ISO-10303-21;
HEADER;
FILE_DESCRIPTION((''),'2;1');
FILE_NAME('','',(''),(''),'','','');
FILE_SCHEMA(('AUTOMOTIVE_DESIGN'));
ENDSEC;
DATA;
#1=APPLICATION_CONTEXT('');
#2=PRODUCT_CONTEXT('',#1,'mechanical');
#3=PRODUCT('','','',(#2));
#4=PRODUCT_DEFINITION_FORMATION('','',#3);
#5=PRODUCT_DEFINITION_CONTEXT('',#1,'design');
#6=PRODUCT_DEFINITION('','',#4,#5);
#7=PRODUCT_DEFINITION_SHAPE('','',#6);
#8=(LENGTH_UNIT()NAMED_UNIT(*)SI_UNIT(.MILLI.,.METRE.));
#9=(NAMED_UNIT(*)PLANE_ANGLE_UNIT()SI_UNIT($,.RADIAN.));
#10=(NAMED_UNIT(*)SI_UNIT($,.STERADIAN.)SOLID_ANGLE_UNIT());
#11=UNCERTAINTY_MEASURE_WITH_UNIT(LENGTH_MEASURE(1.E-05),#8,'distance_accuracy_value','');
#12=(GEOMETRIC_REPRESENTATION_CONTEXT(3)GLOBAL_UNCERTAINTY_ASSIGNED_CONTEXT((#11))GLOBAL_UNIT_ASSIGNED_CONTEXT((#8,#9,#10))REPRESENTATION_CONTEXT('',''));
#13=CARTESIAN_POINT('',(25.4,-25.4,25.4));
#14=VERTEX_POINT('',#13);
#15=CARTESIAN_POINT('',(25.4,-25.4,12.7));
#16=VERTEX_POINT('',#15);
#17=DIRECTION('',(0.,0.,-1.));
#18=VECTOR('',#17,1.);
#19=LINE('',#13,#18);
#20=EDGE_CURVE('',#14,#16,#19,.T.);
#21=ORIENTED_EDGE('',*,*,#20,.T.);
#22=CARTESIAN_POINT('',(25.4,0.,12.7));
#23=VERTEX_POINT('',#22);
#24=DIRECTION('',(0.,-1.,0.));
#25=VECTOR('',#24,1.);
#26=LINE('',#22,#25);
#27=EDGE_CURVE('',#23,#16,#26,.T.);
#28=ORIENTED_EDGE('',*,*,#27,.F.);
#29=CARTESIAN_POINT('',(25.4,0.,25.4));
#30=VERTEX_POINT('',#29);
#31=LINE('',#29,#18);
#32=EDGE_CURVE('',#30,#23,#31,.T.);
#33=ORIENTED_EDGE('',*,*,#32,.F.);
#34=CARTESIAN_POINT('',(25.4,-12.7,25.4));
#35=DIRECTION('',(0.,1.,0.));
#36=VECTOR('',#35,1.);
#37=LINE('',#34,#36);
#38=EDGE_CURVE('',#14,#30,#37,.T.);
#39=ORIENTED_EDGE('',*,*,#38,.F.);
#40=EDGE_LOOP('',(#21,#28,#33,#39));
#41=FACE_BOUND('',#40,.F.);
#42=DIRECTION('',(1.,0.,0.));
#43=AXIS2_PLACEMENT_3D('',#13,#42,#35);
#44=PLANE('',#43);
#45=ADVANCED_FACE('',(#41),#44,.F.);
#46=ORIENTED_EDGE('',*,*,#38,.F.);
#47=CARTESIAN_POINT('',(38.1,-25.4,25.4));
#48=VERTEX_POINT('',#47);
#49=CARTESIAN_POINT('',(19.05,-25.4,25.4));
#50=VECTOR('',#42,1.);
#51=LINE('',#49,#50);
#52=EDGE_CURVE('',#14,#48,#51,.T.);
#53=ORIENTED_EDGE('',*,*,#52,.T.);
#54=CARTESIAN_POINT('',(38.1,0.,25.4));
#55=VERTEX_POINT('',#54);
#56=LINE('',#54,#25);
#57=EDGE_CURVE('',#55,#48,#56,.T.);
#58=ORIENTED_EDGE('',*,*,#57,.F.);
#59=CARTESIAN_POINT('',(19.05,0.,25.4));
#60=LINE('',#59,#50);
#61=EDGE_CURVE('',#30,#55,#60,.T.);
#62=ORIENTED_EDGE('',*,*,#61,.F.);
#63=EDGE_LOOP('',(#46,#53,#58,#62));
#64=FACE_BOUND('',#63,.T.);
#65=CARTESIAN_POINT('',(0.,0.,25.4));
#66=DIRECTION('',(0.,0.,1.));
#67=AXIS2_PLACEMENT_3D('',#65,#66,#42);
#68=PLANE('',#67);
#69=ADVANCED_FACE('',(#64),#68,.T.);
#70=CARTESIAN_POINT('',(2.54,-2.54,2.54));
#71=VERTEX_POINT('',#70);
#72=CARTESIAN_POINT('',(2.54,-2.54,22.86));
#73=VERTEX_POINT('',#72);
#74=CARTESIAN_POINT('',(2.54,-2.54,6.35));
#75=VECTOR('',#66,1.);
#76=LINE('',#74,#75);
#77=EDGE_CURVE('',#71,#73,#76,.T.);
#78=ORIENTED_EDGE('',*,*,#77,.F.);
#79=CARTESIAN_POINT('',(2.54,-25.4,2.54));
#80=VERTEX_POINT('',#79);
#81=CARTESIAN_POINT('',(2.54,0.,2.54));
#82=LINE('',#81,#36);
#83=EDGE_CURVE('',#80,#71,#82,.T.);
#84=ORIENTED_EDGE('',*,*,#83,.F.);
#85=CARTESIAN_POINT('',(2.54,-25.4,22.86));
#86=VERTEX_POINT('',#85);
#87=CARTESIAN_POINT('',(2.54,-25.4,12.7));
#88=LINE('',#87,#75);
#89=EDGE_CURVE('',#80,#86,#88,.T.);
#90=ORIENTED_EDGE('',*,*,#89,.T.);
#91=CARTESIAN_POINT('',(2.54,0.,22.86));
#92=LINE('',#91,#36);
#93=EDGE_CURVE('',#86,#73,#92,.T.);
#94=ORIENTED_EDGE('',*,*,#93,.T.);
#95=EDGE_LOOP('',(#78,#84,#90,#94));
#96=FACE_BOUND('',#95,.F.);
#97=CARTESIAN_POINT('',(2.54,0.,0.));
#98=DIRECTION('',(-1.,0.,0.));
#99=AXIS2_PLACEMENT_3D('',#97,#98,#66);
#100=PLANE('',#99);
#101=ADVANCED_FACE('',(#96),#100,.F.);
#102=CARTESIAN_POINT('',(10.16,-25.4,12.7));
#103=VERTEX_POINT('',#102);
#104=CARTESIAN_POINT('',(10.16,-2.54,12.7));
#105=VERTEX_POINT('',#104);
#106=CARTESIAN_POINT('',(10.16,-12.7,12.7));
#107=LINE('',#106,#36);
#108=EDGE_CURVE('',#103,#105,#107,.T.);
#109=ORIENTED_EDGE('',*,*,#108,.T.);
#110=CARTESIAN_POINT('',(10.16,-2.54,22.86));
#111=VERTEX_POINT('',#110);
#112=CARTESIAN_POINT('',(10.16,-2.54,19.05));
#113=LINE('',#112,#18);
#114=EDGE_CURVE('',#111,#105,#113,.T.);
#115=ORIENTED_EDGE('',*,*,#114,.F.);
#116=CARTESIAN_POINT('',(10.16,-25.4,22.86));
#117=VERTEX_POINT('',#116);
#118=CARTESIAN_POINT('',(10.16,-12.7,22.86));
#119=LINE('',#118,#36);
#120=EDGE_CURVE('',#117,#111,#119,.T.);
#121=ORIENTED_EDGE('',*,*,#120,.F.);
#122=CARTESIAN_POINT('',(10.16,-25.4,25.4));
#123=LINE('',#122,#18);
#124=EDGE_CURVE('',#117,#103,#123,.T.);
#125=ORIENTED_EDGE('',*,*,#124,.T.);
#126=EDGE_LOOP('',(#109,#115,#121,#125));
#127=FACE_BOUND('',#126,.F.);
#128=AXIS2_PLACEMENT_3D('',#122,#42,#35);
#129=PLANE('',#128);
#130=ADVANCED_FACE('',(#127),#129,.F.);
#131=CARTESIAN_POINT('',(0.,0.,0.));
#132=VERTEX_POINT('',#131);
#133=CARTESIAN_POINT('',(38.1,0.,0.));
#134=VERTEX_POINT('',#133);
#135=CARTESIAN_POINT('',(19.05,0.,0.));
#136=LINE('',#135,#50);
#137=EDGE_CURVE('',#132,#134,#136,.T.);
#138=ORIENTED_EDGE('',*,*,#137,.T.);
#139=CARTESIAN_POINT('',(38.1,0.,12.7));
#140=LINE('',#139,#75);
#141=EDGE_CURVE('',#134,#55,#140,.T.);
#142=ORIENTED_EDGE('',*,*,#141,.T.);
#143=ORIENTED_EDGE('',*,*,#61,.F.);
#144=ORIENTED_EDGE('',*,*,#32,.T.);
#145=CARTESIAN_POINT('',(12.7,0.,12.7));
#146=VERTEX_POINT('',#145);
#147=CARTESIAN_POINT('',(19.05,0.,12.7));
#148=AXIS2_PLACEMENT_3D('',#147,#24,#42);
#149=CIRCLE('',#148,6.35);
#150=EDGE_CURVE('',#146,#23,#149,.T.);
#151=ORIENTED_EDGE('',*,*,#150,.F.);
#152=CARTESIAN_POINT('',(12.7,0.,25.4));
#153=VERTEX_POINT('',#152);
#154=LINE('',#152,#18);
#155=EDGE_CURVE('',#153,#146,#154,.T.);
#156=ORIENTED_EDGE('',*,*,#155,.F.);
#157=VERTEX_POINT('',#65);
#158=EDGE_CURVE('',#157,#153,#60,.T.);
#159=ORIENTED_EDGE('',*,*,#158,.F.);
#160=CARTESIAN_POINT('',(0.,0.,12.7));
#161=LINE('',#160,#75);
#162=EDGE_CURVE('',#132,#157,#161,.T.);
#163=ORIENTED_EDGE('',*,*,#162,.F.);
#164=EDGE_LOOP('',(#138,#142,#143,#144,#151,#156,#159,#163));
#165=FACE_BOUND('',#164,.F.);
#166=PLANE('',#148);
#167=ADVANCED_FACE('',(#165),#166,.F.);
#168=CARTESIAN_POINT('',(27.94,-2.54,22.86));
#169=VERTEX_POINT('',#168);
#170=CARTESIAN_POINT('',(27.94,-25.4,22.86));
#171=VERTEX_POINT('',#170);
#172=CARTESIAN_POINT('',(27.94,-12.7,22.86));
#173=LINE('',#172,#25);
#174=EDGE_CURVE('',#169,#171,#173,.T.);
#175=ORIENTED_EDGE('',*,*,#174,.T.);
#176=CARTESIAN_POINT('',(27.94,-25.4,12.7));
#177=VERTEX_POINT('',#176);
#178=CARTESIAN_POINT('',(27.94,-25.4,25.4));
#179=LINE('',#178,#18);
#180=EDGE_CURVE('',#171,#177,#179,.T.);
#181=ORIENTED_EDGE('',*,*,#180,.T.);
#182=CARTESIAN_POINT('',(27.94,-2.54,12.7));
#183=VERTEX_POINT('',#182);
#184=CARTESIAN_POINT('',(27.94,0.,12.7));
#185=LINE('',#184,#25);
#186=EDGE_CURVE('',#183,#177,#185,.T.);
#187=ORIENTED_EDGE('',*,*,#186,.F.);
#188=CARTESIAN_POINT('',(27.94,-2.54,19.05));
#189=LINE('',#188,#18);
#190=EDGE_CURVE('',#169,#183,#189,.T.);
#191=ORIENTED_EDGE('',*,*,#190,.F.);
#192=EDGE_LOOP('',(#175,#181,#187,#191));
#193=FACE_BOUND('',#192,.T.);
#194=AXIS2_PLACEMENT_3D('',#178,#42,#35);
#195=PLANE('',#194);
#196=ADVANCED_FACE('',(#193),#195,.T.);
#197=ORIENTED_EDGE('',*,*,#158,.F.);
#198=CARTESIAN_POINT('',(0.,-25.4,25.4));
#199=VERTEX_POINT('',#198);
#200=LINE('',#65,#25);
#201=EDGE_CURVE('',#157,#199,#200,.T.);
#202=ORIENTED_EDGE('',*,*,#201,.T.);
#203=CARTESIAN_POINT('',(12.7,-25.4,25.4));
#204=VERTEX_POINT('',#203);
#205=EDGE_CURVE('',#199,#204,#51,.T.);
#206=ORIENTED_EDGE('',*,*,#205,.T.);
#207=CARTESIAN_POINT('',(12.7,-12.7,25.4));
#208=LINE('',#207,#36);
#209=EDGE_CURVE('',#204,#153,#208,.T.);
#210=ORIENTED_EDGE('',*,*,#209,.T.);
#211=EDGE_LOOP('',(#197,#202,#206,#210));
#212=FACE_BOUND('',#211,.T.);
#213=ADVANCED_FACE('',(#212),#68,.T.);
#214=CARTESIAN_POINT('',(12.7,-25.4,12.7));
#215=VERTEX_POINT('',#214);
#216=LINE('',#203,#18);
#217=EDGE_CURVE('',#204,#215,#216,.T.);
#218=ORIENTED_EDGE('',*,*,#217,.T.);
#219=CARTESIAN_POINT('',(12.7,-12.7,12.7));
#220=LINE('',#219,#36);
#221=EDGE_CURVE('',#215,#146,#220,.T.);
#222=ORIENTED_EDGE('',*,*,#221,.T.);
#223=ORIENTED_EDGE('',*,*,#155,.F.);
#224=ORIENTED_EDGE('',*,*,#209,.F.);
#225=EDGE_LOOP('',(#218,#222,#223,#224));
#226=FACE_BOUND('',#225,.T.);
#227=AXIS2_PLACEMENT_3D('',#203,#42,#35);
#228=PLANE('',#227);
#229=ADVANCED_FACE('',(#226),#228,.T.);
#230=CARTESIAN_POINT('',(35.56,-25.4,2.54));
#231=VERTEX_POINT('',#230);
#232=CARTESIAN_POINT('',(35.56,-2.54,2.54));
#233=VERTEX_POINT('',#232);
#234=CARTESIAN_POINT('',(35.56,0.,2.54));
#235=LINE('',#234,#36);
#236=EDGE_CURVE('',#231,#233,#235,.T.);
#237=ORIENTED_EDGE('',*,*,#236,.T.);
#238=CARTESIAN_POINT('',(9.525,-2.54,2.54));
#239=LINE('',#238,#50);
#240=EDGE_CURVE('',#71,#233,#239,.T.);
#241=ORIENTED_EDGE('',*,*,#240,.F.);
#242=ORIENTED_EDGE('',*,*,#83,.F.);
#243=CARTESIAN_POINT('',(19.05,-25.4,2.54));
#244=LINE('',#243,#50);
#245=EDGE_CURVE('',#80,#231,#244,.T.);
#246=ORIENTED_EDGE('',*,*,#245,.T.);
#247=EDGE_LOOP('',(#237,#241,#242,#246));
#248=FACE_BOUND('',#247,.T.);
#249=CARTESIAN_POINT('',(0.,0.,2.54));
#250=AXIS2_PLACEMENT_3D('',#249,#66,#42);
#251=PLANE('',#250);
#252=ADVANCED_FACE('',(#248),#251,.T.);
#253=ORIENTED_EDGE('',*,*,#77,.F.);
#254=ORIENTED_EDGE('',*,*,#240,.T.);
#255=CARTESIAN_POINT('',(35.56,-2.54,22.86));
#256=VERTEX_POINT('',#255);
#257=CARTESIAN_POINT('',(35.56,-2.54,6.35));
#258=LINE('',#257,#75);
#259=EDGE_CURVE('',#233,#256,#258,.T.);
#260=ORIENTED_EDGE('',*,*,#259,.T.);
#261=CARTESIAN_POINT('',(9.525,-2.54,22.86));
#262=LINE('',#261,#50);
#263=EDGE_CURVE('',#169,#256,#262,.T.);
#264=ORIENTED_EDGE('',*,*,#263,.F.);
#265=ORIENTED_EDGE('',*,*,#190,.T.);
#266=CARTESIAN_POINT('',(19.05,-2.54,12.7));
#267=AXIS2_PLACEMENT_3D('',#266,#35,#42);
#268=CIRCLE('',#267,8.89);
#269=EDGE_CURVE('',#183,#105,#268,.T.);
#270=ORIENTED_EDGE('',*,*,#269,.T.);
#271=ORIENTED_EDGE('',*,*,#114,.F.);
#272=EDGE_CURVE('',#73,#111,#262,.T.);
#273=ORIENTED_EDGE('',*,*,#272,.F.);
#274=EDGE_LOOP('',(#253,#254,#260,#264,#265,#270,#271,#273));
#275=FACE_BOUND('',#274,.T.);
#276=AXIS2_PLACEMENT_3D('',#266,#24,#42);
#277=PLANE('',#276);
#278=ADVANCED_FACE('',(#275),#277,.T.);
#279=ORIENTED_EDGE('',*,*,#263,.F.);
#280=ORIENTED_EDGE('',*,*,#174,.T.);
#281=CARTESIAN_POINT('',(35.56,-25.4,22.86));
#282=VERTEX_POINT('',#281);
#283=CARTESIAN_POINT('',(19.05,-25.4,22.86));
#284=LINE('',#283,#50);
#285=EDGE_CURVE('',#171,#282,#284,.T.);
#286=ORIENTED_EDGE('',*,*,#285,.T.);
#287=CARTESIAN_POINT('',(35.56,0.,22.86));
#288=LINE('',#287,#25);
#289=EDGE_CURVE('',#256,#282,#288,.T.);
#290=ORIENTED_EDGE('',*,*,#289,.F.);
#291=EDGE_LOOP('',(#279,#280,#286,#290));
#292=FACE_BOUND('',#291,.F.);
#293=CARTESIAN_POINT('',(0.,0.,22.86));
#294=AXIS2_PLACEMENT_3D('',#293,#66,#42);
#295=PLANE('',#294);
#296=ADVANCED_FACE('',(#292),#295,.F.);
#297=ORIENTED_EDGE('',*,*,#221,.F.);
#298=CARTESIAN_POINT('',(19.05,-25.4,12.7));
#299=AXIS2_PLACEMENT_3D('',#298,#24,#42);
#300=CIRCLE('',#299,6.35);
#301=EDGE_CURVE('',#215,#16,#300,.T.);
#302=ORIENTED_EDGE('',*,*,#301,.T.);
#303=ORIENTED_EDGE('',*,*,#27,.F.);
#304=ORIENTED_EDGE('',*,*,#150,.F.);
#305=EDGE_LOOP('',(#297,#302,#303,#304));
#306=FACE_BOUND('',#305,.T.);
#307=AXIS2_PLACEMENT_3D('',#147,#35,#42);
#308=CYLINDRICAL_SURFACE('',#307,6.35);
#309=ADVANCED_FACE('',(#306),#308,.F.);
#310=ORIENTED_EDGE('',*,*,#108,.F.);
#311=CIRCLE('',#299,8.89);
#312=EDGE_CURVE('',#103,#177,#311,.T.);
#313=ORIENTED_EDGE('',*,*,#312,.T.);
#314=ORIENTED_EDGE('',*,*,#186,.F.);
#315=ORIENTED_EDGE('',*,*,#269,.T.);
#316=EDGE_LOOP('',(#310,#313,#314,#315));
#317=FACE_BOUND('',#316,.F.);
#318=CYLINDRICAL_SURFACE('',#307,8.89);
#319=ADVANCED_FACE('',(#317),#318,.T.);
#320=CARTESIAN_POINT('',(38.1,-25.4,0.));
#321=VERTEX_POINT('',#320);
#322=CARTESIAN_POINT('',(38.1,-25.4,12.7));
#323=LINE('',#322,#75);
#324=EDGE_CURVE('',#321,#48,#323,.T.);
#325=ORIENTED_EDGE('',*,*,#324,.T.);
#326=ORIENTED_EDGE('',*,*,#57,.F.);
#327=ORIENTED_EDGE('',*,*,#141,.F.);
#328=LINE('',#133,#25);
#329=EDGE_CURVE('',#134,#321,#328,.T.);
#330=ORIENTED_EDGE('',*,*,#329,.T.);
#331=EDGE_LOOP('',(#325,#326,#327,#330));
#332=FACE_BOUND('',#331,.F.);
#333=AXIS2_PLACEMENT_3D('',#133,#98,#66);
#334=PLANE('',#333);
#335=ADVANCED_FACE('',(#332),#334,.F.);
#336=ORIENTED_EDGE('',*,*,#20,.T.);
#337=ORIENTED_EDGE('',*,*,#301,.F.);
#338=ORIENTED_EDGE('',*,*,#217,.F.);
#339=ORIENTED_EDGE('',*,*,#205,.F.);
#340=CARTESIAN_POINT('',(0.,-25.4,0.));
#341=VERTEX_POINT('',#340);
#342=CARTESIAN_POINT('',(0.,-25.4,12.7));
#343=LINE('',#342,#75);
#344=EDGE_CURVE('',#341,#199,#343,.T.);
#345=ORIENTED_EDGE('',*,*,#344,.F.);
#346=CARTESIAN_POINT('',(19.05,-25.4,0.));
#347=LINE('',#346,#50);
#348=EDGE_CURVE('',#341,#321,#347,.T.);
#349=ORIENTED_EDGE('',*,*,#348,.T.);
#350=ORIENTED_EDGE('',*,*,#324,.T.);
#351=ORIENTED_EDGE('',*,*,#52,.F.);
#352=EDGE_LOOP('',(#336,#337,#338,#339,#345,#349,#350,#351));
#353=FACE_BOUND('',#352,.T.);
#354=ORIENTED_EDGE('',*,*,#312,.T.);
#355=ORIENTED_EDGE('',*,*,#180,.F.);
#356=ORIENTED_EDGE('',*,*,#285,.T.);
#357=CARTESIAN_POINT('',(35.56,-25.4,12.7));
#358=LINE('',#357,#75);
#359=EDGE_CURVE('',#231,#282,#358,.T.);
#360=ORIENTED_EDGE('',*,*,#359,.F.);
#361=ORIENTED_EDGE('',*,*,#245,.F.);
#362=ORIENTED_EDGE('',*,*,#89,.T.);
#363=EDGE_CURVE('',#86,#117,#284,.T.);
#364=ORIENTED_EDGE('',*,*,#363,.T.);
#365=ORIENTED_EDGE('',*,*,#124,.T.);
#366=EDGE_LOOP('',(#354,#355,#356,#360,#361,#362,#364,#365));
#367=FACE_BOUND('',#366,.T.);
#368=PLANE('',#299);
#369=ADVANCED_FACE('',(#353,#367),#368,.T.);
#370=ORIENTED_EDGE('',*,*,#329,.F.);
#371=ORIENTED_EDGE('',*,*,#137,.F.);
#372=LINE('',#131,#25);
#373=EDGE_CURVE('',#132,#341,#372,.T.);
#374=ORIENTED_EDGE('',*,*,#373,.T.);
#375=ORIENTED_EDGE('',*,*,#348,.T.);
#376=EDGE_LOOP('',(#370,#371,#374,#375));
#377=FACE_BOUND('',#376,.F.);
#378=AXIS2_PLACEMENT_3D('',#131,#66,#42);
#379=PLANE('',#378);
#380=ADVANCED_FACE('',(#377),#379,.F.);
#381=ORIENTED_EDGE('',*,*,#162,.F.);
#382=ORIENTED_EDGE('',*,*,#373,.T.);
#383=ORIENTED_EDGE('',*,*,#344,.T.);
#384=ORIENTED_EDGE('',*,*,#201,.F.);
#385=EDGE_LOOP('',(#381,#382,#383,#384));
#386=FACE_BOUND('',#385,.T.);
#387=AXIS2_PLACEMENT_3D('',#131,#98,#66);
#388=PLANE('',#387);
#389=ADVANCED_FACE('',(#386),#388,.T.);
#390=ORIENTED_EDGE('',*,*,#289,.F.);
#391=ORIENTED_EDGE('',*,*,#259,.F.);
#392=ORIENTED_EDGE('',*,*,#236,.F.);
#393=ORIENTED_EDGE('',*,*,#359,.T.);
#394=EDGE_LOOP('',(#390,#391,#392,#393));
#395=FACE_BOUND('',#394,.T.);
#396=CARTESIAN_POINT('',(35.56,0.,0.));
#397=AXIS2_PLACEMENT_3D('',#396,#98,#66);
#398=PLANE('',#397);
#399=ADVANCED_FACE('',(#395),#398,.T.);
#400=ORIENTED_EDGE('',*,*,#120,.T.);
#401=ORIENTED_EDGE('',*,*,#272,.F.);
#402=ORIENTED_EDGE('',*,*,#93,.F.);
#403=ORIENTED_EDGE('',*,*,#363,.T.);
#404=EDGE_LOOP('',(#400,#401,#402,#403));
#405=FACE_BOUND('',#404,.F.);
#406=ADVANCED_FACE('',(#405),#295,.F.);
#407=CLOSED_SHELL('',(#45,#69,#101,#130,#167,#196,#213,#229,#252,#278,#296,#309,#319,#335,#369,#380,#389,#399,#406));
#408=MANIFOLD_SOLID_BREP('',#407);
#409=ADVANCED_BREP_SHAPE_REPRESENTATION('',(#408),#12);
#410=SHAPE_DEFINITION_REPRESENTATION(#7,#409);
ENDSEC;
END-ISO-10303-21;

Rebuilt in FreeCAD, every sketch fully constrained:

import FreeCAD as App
import Part
import Sketcher
from FreeCAD import Vector
Q = App.Units.Quantity


def faces_at(feature, points):
    """Names of the faces that lie closest to the given points."""
    faces = feature.Shape.Faces
    near = lambda p: min(range(len(faces)), key=lambda i: faces[i].distToShape(Part.Vertex(*p))[0])
    return sorted({f"Face{near(p) + 1}" for p in points})

doc = App.newDocument("Part")
body = doc.addObject("PartDesign::Body", "Body")

# Sketch on XZ plane
sketch1 = doc.addObject("Sketcher::SketchObject", "Sketch")
body.addObject(sketch1)
sketch1.AttachmentSupport = (doc.XZ_Plane, [""])
sketch1.MapMode = "FlatFace"
sketch1.addGeometry([
    Part.LineSegment(Vector(0, 25.4, 0), Vector(0, 0, 0)),  # 0
    Part.LineSegment(Vector(0, 0, 0), Vector(38.1, 0, 0)),  # 1
    Part.LineSegment(Vector(38.1, 0, 0), Vector(38.1, 25.4, 0)),  # 2
    Part.LineSegment(Vector(38.1, 25.4, 0), Vector(0, 25.4, 0)),  # 3
    Part.Circle(Vector(19.05, 12.7, 0), Vector(0, 0, 1), 6.35),  # 4
], False)
sketch1.addConstraint([
    Sketcher.Constraint("Coincident", 0, 2, 1, 1),
    Sketcher.Constraint("Coincident", 1, 2, 2, 1),
    Sketcher.Constraint("Coincident", 2, 2, 3, 1),
    Sketcher.Constraint("Coincident", 3, 2, 0, 1),
    Sketcher.Constraint("Vertical", 0),
    Sketcher.Constraint("Horizontal", 1),
    Sketcher.Constraint("Vertical", 2),
    Sketcher.Constraint("Horizontal", 3),
    Sketcher.Constraint("Coincident", 0, 2, -1, 1),
    Sketcher.Constraint("Diameter", 4, Q("0.5 in")),
    Sketcher.Constraint("DistanceY", 0, 2, 0, 1, Q("1 in")),
    Sketcher.Constraint("DistanceX", 1, 1, 1, 2, Q("1.5 in")),
    Sketcher.Constraint("DistanceY", -1, 1, 4, 3, Q("0.5 in")),
    Sketcher.Constraint("DistanceX", -1, 1, 4, 3, Q("0.75 in")),
])
pad1 = doc.addObject("PartDesign::Pad", "Pad")
body.addObject(pad1)
pad1.Profile = sketch1
pad1.Length = Q("1 in")

# Sketch on XY plane
sketch2 = doc.addObject("Sketcher::SketchObject", "Sketch001")
body.addObject(sketch2)
sketch2.AttachmentSupport = (doc.XY_Plane, [""])
sketch2.MapMode = "FlatFace"
sketch2.AttachmentOffset = App.Placement(Vector(0, 0, 1 * 25.4), App.Rotation())
sketch2.addGeometry([
    Part.LineSegment(Vector(12.7, 0, 0), Vector(12.7, -25.4, 0)),
    Part.LineSegment(Vector(12.7, -25.4, 0), Vector(25.4, -25.4, 0)),
    Part.LineSegment(Vector(25.4, -25.4, 0), Vector(25.4, 0, 0)),
    Part.LineSegment(Vector(25.4, 0, 0), Vector(12.7, 0, 0)),
], False)
sketch2.addConstraint([
    Sketcher.Constraint("Coincident", 0, 2, 1, 1),
    Sketcher.Constraint("Coincident", 1, 2, 2, 1),
    Sketcher.Constraint("Coincident", 2, 2, 3, 1),
    Sketcher.Constraint("Coincident", 3, 2, 0, 1),
    Sketcher.Constraint("Vertical", 0),
    Sketcher.Constraint("Horizontal", 1),
    Sketcher.Constraint("Vertical", 2),
    Sketcher.Constraint("Horizontal", 3),
    Sketcher.Constraint("PointOnObject", 2, 2, -1),
    Sketcher.Constraint("DistanceY", 0, 2, 0, 1, Q("1 in")),
    Sketcher.Constraint("DistanceX", 1, 1, 1, 2, Q("0.5 in")),
    Sketcher.Constraint("DistanceX", -1, 1, 1, 2, Q("1 in")),
])
pocket1 = doc.addObject("PartDesign::Pocket", "Pocket")
body.addObject(pocket1)
pocket1.Profile = sketch2
pocket1.Length = Q("0.5 in")
doc.recompute()

thickness = doc.addObject("PartDesign::Thickness", "Thickness")
body.addObject(thickness)
thickness.Base = (pocket1, faces_at(pocket1, [(11.43, -25.4, 7.62)]))
thickness.Value = Q("0.1 in")
thickness.Reversed = True
thickness.Join = "Arc"

doc.recompute()
